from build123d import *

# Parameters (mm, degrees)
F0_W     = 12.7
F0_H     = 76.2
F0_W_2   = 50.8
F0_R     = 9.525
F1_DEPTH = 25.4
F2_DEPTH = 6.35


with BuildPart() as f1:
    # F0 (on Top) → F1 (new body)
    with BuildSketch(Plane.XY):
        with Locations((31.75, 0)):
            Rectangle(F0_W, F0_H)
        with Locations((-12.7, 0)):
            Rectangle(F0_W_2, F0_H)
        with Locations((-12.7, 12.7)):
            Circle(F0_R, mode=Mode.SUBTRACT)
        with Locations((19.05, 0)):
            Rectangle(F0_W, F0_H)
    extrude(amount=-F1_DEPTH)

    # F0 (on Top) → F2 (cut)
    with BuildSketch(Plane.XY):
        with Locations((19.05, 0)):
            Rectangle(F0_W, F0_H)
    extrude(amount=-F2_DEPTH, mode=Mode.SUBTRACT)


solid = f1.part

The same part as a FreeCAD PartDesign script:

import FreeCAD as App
import Part
import Sketcher

V = App.Vector
Q = App.Units.Quantity


def add_polygon(sketch, points):
    """Adds a closed chain of lines whose ends are joined by coincident constraints."""
    first, n = sketch.GeometryCount, len(points)
    for a, b in zip(points, points[1:] + points[:1]):
        sketch.addGeometry(Part.LineSegment(App.Vector(*a, 0), App.Vector(*b, 0)), False)
    for i in range(n):
        sketch.addConstraint(Sketcher.Constraint("Coincident", first + i, 2, first + (i + 1) % n, 1))

doc = App.newDocument("Part")
body = doc.addObject("PartDesign::Body", "Body")

# Sketch on XY plane
sketch1 = body.newObject("Sketcher::SketchObject", "Sketch")
sketch1.AttachmentSupport = (doc.getObject("XY_Plane"), [""])
sketch1.MapMode = "FlatFace"
add_polygon(sketch1, [(38.1, -38.1), (38.1, 38.1), (-38.1, 38.1), (-38.1, -38.1)])  # lines 0-3
sketch1.addGeometry(Part.Circle(V(-12.7, 12.7, 0), V(0, 0, 1), 9.525), False)  # 4
sketch1.addConstraint(Sketcher.Constraint("Vertical", 0))
sketch1.addConstraint(Sketcher.Constraint("Horizontal", 1))
sketch1.addConstraint(Sketcher.Constraint("Vertical", 2))
sketch1.addConstraint(Sketcher.Constraint("Horizontal", 3))
sketch1.addConstraint(Sketcher.Constraint("Symmetric", 0, 2, 2, 2, -1, 1))
sketch1.addConstraint(Sketcher.Constraint("Equal", 3, 0))
sketch1.addConstraint(Sketcher.Constraint("Diameter", 4, Q("0.75 in")))
sketch1.addConstraint(Sketcher.Constraint("DistanceX", 1, 2, 1, 1, Q("3 in")))
sketch1.addConstraint(Sketcher.Constraint("DistanceX", 4, 3, 0, 2, Q("2 in")))
sketch1.addConstraint(Sketcher.Constraint("DistanceY", 4, 3, 0, 2, Q("1 in")))
pad1 = body.newObject("PartDesign::Pad", "Pad")
pad1.Profile = sketch1
pad1.Length = Q("1 in")
pad1.Reversed = True

# Sketch on XY plane
sketch2 = body.newObject("Sketcher::SketchObject", "Sketch001")
sketch2.AttachmentSupport = (doc.getObject("XY_Plane"), [""])
sketch2.MapMode = "FlatFace"
add_polygon(sketch2, [(12.7, 38.1), (12.7, -38.1), (25.4, -38.1), (25.4, 38.1)])  # lines 0-3
sketch2.addConstraint(Sketcher.Constraint("Vertical", 0))
sketch2.addConstraint(Sketcher.Constraint("Horizontal", 1))
sketch2.addConstraint(Sketcher.Constraint("Vertical", 2))
sketch2.addConstraint(Sketcher.Constraint("Horizontal", 3))
sketch2.addConstraint(Sketcher.Constraint("DistanceY", 0, 2, 0, 1, Q("3 in")))
sketch2.addConstraint(Sketcher.Constraint("DistanceX", 1, 1, 1, 2, Q("0.5 in")))
sketch2.addConstraint(Sketcher.Constraint("DistanceX", -1, 1, 1, 2, Q("1 in")))
sketch2.addConstraint(Sketcher.Constraint("DistanceY", 0, 2, -1, 1, Q("1.5 in")))
pocket1 = body.newObject("PartDesign::Pocket", "Pocket")
pocket1.Profile = sketch2
pocket1.Length = Q("0.25 in")

doc.recompute()
